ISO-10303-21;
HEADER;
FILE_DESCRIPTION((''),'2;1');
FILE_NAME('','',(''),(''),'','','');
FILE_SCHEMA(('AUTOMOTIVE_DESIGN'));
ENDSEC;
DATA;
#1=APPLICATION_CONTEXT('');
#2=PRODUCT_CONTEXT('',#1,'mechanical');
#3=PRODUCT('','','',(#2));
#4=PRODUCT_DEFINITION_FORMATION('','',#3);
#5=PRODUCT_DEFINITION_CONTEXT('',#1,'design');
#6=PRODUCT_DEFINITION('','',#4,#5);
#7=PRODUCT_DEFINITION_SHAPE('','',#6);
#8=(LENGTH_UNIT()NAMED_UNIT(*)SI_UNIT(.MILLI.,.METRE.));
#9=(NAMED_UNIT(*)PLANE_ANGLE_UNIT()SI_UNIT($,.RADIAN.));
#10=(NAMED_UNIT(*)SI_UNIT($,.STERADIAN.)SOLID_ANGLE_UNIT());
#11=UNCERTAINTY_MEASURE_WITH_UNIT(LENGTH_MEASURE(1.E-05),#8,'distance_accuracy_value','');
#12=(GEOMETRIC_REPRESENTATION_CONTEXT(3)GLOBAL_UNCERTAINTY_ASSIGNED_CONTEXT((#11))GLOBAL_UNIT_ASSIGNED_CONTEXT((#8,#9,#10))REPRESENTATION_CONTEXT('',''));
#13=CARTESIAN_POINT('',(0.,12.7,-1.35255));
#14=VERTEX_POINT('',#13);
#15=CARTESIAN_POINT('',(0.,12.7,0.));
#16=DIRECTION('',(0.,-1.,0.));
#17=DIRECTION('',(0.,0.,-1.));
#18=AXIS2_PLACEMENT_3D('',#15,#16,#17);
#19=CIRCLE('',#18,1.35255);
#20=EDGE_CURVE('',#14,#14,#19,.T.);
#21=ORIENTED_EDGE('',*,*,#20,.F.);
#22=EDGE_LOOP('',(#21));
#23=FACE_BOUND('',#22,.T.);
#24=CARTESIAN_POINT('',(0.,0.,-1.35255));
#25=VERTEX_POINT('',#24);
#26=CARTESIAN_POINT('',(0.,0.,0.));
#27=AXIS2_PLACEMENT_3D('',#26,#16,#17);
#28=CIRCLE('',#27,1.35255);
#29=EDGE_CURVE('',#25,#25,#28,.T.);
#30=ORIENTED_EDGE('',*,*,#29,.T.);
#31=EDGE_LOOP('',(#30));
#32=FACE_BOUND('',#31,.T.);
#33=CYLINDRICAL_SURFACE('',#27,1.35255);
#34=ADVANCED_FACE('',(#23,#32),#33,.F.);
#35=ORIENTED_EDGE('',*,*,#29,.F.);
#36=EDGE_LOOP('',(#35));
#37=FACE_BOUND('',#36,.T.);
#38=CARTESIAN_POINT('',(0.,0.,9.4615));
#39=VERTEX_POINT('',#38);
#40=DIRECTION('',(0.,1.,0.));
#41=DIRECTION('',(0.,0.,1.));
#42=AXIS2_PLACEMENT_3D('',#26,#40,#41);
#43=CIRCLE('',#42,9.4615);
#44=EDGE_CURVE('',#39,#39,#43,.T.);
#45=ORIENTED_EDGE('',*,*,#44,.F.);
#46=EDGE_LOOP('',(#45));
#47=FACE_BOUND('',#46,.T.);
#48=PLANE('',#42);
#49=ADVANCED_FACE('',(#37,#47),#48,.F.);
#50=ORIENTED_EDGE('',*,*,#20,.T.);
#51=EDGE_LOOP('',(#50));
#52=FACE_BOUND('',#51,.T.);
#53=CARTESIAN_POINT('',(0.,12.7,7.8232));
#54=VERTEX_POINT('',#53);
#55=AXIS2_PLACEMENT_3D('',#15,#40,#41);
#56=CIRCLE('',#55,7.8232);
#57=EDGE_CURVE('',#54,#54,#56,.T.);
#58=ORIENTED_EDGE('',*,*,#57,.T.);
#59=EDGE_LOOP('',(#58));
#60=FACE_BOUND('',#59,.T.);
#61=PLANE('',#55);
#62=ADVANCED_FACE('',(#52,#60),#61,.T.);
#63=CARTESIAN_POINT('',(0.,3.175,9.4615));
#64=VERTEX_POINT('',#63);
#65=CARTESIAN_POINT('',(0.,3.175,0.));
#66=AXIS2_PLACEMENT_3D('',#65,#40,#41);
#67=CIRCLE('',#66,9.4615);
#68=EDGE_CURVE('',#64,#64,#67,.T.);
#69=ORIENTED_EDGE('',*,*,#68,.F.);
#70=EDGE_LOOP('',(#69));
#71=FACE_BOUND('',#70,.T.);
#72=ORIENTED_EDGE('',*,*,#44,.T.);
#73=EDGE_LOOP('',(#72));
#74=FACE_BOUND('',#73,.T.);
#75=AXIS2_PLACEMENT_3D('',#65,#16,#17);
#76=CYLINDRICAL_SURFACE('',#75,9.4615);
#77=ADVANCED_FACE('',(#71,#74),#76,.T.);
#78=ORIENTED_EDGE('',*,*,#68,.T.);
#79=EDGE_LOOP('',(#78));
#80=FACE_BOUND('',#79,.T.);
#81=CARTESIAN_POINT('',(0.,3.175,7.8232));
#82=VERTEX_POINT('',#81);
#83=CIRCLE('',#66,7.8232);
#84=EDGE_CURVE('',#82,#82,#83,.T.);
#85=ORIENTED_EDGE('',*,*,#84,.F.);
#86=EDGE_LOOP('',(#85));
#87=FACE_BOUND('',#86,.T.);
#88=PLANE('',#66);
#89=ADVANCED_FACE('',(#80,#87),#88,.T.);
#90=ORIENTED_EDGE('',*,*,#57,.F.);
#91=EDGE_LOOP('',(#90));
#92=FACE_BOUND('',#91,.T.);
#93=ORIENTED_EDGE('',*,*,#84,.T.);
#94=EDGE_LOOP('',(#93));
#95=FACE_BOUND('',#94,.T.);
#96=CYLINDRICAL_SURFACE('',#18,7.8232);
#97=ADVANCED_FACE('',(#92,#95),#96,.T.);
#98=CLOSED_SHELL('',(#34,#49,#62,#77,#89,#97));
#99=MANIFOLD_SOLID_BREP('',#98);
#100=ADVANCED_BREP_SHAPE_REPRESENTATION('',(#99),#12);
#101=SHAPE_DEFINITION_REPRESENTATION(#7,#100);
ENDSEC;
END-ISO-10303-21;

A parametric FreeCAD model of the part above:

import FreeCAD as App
import Part
import Sketcher

V = App.Vector
Q = App.Units.Quantity

doc = App.newDocument("Part")
body = doc.addObject("PartDesign::Body", "Body")

sketch1 = body.newObject("Sketcher::SketchObject", "Sketch")
sketch1.AttachmentSupport = (doc.getObject("XZ_Plane"), [""])
sketch1.MapMode = "FlatFace"
sketch1.addGeometry(Part.Circle(V(0, 0, 0), V(0, 0, 1), 9), False)
sketch1.addConstraint([
    Sketcher.Constraint("Coincident", 0, 3, -1, 1),
    Sketcher.Constraint("Diameter", 0, Q("0.745 in")),
])
pad1 = body.newObject("PartDesign::Pad", "Pad")
pad1.Profile = sketch1
pad1.Length = Q("0.125 in")
pad1.Reversed = True

sketch2 = body.newObject("Sketcher::SketchObject", "Sketch001")
sketch2.AttachmentSupport = (doc.getObject("XZ_Plane"), [""])
sketch2.MapMode = "FlatFace"
sketch2.AttachmentOffset = App.Placement(V(0, 0, -0.125 * 25.4), App.Rotation())
sketch2.addGeometry(Part.Circle(V(0, 0, 0), V(0, 0, 1), 8), False)
sketch2.addConstraint([
    Sketcher.Constraint("Coincident", 0, 3, -1, 1),
    Sketcher.Constraint("Diameter", 0, Q("0.616 in")),
])
pad2 = body.newObject("PartDesign::Pad", "Pad001")
pad2.Profile = sketch2
pad2.Length = Q("0.375 in")
pad2.Reversed = True

sketch3 = body.newObject("Sketcher::SketchObject", "Sketch002")
sketch3.AttachmentSupport = (doc.getObject("XZ_Plane"), [""])
sketch3.MapMode = "FlatFace"
sketch3.addGeometry(Part.Circle(V(0, 0, 0), V(0, 0, 1), 1.4), False)
sketch3.addConstraint([
    Sketcher.Constraint("Coincident", 0, 3, -1, 1),
    Sketcher.Constraint("Diameter", 0, Q("0.1065 in")),
])
doc.recompute()
hole = body.newObject("PartDesign::Hole", "Hole")
hole.Profile = sketch3
hole.ThreadType = "None"
hole.Diameter = Q("0.1065 in")
hole.DepthType = "ThroughAll"

doc.recompute()
